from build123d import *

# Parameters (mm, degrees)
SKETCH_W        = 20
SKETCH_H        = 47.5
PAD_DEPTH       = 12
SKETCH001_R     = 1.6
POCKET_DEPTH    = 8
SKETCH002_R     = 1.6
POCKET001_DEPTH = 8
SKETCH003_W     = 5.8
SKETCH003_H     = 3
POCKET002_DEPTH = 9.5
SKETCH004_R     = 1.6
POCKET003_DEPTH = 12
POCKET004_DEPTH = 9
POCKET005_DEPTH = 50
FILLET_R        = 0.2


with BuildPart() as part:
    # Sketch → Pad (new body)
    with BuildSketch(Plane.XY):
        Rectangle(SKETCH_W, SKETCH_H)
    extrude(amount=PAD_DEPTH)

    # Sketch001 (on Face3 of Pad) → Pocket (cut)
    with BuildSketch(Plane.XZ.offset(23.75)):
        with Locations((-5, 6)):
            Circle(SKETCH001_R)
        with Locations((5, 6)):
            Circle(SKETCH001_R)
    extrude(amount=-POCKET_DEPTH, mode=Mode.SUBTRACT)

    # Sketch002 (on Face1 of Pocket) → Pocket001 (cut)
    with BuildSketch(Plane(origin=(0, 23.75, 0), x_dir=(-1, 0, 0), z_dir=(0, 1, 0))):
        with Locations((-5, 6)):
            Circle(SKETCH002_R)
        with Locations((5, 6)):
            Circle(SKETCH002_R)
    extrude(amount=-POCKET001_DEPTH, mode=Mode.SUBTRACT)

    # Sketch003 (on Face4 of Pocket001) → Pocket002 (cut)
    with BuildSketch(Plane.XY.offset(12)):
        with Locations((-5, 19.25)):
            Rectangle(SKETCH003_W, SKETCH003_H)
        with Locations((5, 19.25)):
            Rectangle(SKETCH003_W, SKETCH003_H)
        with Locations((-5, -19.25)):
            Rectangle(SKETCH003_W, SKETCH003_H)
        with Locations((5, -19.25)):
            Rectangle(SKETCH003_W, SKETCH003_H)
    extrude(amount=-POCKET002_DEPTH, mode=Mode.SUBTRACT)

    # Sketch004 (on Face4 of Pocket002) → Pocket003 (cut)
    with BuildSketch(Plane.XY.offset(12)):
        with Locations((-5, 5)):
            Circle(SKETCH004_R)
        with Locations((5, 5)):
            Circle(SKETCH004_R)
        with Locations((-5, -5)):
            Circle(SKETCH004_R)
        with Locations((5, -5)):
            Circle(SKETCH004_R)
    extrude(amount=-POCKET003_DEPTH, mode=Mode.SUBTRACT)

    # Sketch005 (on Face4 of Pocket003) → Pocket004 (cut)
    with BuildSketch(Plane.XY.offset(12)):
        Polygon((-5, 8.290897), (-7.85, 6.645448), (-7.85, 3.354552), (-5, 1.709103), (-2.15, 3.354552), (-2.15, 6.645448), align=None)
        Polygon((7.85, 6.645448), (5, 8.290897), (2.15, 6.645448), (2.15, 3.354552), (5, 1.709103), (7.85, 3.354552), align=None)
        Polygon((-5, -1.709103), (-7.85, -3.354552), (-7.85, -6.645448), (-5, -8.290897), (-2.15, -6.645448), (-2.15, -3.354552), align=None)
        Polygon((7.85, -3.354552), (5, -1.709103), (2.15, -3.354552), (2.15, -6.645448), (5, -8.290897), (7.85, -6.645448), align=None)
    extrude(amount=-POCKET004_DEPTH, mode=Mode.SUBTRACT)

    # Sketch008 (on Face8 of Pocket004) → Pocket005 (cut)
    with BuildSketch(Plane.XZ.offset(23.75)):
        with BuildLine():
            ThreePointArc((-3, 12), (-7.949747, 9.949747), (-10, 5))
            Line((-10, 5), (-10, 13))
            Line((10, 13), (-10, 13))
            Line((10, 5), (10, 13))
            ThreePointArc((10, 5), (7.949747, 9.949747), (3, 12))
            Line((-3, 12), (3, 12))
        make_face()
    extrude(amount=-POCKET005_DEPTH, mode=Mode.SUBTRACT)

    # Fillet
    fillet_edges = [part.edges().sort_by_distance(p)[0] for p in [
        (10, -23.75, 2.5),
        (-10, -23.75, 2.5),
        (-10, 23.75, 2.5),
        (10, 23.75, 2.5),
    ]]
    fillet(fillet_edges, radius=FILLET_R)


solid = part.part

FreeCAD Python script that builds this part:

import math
import FreeCAD as App
import Part
import Sketcher
Q = App.Units.Quantity


def edges_at(feature, points):
    """Names of the edges that pass closest to the given points."""
    edges = feature.Shape.Edges
    near = lambda p: min(range(len(edges)), key=lambda i: edges[i].distToShape(Part.Vertex(*p))[0])
    return sorted({f"Edge{near(p) + 1}" for p in points})


def add_polygon(sketch, points):
    """Adds a closed chain of lines whose ends are joined by coincident constraints."""
    first, n = sketch.GeometryCount, len(points)
    for a, b in zip(points, points[1:] + points[:1]):
        sketch.addGeometry(Part.LineSegment(App.Vector(*a, 0), App.Vector(*b, 0)), False)
    for i in range(n):
        sketch.addConstraint(Sketcher.Constraint("Coincident", first + i, 2, first + (i + 1) % n, 1))

doc = App.newDocument("Part")
params = doc.addObject("Spreadsheet::Sheet", "Params")
for row, (alias, value) in enumerate([
    ("sketch1_width", "20 mm"),
    ("sketch1_height", "47.5 mm"),
    ("pad1_length", "12 mm"),
    ("sketch2_diameter", "3.2 mm"),
    ("pocket1_length", "8 mm"),
    ("sketch3_diameter", "3.2 mm"),
    ("pocket2_length", "8 mm"),
    ("sketch4_height", "3 mm"),
    ("sketch4_width", "5.8 mm"),
    ("pocket3_length", "9.5 mm"),
    ("sketch5_diameter", "3.2 mm"),
    ("pocket4_length", "12 mm"),
    ("pocket5_length", "9 mm"),
    ("sketch7_radius", "7.000002 mm"),
    ("sketch7_width", "6 mm"),
    ("sketch7_height", "8 mm"),
    ("pocket6_length", "50 mm"),
    ("fillet_radius", "0.2 mm"),
], start=1):
    params.set(f"A{row}", alias)
    params.set(f"B{row}", "=" + value)
    params.setAlias(f"B{row}", alias)

body = doc.addObject("PartDesign::Body", "Body")

# Sketch on XY plane
sketch1 = body.newObject("Sketcher::SketchObject", "Sketch")
sketch1.AttachmentSupport = (doc.getObject("XY_Plane"), [""])
sketch1.MapMode = "FlatFace"
add_polygon(sketch1, [(-10, 23.75), (-10, -23.75), (10, -23.75), (10, 23.75)])  # lines 0-3
sketch1.addConstraint([
    Sketcher.Constraint("Vertical", 0),
    Sketcher.Constraint("Horizontal", 1),
    Sketcher.Constraint("Vertical", 2),
    Sketcher.Constraint("Horizontal", 3),
    Sketcher.Constraint("Symmetric", 0, 2, 2, 2, -1, 1),
    Sketcher.Constraint("DistanceX", 1, 1, 1, 2, 20.0),
    Sketcher.Constraint("DistanceY", 0, 2, 0, 1, 47.5),
])
sketch1.setExpression("Constraints[9]", "Params.sketch1_width")
sketch1.setExpression("Constraints[10]", "Params.sketch1_height")
pad1 = body.newObject("PartDesign::Pad", "Pad")
pad1.Profile = sketch1
pad1.setExpression("Length", "Params.pad1_length")

# Sketch on XZ plane
sketch2 = body.newObject("Sketcher::SketchObject", "Sketch001")
sketch2.AttachmentSupport = (doc.getObject("XZ_Plane"), [""])
sketch2.MapMode = "FlatFace"
sketch2.AttachmentOffset = App.Placement(App.Vector(0, 0, 23.75), App.Rotation())
sketch2.addGeometry([
    Part.Circle(App.Vector(-5, 6, 0), App.Vector(0, 0, 1), 1.6),
    Part.Circle(App.Vector(5, 6, 0), App.Vector(0, 0, 1), 1.6),
], False)
sketch2.addConstraint([
    Sketcher.Constraint("Equal", 0, 1),
    Sketcher.Constraint("Symmetric", 0, 3, 1, 3, -2),
    Sketcher.Constraint("Diameter", 0, 3.2),
    Sketcher.Constraint("DistanceX", 0, 3, -1, 1, 5.0),
    Sketcher.Constraint("DistanceY", -1, 1, 0, 3, 6.0),
])
sketch2.setExpression("Constraints[2]", "Params.sketch2_diameter")
pocket1 = body.newObject("PartDesign::Pocket", "Pocket")
pocket1.Profile = sketch2
pocket1.setExpression("Length", "Params.pocket1_length")

# Sketch on XZ plane
sketch3 = body.newObject("Sketcher::SketchObject", "Sketch002")
sketch3.AttachmentSupport = (doc.getObject("XZ_Plane"), [""])
sketch3.MapMode = "FlatFace"
sketch3.AttachmentOffset = App.Placement(App.Vector(0, 0, -23.75), App.Rotation())
sketch3.addGeometry([
    Part.Circle(App.Vector(5, 6, 0), App.Vector(0, 0, 1), 1.6),
    Part.Circle(App.Vector(-5, 6, 0), App.Vector(0, 0, 1), 1.6),
], False)
sketch3.addConstraint([
    Sketcher.Constraint("Equal", 0, 1),
    Sketcher.Constraint("Symmetric", 0, 3, 1, 3, -2),
    Sketcher.Constraint("Diameter", 0, 3.2),
    Sketcher.Constraint("DistanceX", -1, 1, 0, 3, 5.0),
    Sketcher.Constraint("DistanceY", -1, 1, 0, 3, 6.0),
])
sketch3.setExpression("Constraints[2]", "Params.sketch3_diameter")
pocket2 = body.newObject("PartDesign::Pocket", "Pocket001")
pocket2.Profile = sketch3
pocket2.setExpression("Length", "Params.pocket2_length")
pocket2.Reversed = True

# Sketch on XY plane
sketch4 = body.newObject("Sketcher::SketchObject", "Sketch003")
sketch4.AttachmentSupport = (doc.getObject("XY_Plane"), [""])
sketch4.MapMode = "FlatFace"
sketch4.AttachmentOffset = App.Placement(App.Vector(0, 0, 12), App.Rotation())
add_polygon(sketch4, [(-7.9, 20.75), (-7.9, 17.75), (-2.1, 17.75), (-2.1, 20.75)])  # lines 0-3
add_polygon(sketch4, [(2.1, 20.75), (2.1, 17.75), (7.9, 17.75), (7.9, 20.75)])  # lines 4-7
add_polygon(sketch4, [(-7.9, -17.75), (-7.9, -20.75), (-2.1, -20.75), (-2.1, -17.75)])  # lines 8-11
add_polygon(sketch4, [(2.1, -17.75), (2.1, -20.75), (7.9, -20.75), (7.9, -17.75)])  # lines 12-15
sketch4.addConstraint([
    Sketcher.Constraint("Vertical", 0),
    Sketcher.Constraint("Horizontal", 1),
    Sketcher.Constraint("Vertical", 2),
    Sketcher.Constraint("Horizontal", 3),
    Sketcher.Constraint("Vertical", 4),
    Sketcher.Constraint("Horizontal", 5),
    Sketcher.Constraint("Vertical", 6),
    Sketcher.Constraint("Horizontal", 7),
    Sketcher.Constraint("Vertical", 8),
    Sketcher.Constraint("Horizontal", 9),
    Sketcher.Constraint("Vertical", 10),
    Sketcher.Constraint("Horizontal", 11),
    Sketcher.Constraint("Vertical", 12),
    Sketcher.Constraint("Horizontal", 13),
    Sketcher.Constraint("Vertical", 14),
    Sketcher.Constraint("Horizontal", 15),
    Sketcher.Constraint("Symmetric", 6, 2, 8, 2, -1, 1),
    Sketcher.Constraint("Symmetric", 4, 2, 10, 2, -1, 1),
    Sketcher.Constraint("Symmetric", 2, 2, 12, 2, -1, 1),
    Sketcher.Constraint("Symmetric", 0, 2, 14, 2, -1, 1),
    Sketcher.Constraint("Symmetric", 1, 2, 4, 2, -2),
    Sketcher.Constraint("Symmetric", 3, 2, 6, 2, -2),
    Sketcher.Constraint("DistanceY", 0, 2, 0, 1, 3.0),
    Sketcher.Constraint("DistanceX", 1, 1, 1, 2, 5.8),
    Sketcher.Constraint("DistanceX", 0, 2, 4, 2, 10.0),
    Sketcher.Constraint("DistanceY", 8, 2, 0, 2, 38.5),
])
sketch4.setExpression("Constraints[38]", "Params.sketch4_height")
sketch4.setExpression("Constraints[39]", "Params.sketch4_width")
pocket3 = body.newObject("PartDesign::Pocket", "Pocket002")
pocket3.Profile = sketch4
pocket3.setExpression("Length", "Params.pocket3_length")

# Sketch on XY plane
sketch5 = body.newObject("Sketcher::SketchObject", "Sketch004")
sketch5.AttachmentSupport = (doc.getObject("XY_Plane"), [""])
sketch5.MapMode = "FlatFace"
sketch5.AttachmentOffset = App.Placement(App.Vector(0, 0, 12), App.Rotation())
sketch5.addGeometry([
    Part.Circle(App.Vector(-5, 5, 0), App.Vector(0, 0, 1), 1.6),
    Part.Circle(App.Vector(5, 5, 0), App.Vector(0, 0, 1), 1.6),
    Part.Circle(App.Vector(-5, -5, 0), App.Vector(0, 0, 1), 1.6),
    Part.Circle(App.Vector(5, -5, 0), App.Vector(0, 0, 1), 1.6),
], False)
sketch5.addConstraint([
    Sketcher.Constraint("Equal", 0, 1),
    Sketcher.Constraint("Equal", 1, 2),
    Sketcher.Constraint("Equal", 2, 3),
    Sketcher.Constraint("Symmetric", 1, 3, 2, 3, -1, 1),
    Sketcher.Constraint("Symmetric", 0, 3, 3, 3, -1, 1),
    Sketcher.Constraint("Symmetric", 0, 3, 1, 3, -2),
    Sketcher.Constraint("Diameter", 0, 3.2),
    Sketcher.Constraint("DistanceX", 0, 3, -1, 1, 5.0),
    Sketcher.Constraint("DistanceY", -1, 1, 0, 3, 5.0),
])
sketch5.setExpression("Constraints[6]", "Params.sketch5_diameter")
pocket4 = body.newObject("PartDesign::Pocket", "Pocket003")
pocket4.Profile = sketch5
pocket4.setExpression("Length", "Params.pocket4_length")

# Sketch on XY plane
sketch6 = body.newObject("Sketcher::SketchObject", "Sketch005")
sketch6.AttachmentSupport = (doc.getObject("XY_Plane"), [""])
sketch6.MapMode = "FlatFace"
sketch6.AttachmentOffset = App.Placement(App.Vector(0, 0, 12), App.Rotation())
add_polygon(sketch6, [(-5, 8.290897), (-7.85, 6.645448), (-7.85, 3.354552), (-5, 1.709103), (-2.15, 3.354552), (-2.15, 6.645448)])  # lines 0-5
add_polygon(sketch6, [(7.85, 6.645448), (5, 8.290897), (2.15, 6.645448), (2.15, 3.354552), (5, 1.709103), (7.85, 3.354552)])  # lines 6-11
add_polygon(sketch6, [(-5, -1.709103), (-7.85, -3.354552), (-7.85, -6.645448), (-5, -8.290897), (-2.15, -6.645448), (-2.15, -3.354552)])  # lines 12-17
add_polygon(sketch6, [(7.85, -3.354552), (5, -1.709103), (2.15, -3.354552), (2.15, -6.645448), (5, -8.290897), (7.85, -6.645448)])  # lines 18-23
sketch6.addConstraint([
    Sketcher.Constraint("Vertical", 1),
    Sketcher.Constraint("Vertical", 4),
    Sketcher.Constraint("Vertical", 8),
    Sketcher.Constraint("Vertical", 11),
    Sketcher.Constraint("Vertical", 13),
    Sketcher.Constraint("Vertical", 16),
    Sketcher.Constraint("Vertical", 20),
    Sketcher.Constraint("Vertical", 23),
    Sketcher.Constraint("Symmetric", 10, 2, 12, 2, -1, 1),
    Sketcher.Constraint("Symmetric", 6, 2, 14, 2, -1, 1),
    Sketcher.Constraint("Symmetric", 7, 2, 15, 2, -1, 1),
    Sketcher.Constraint("Symmetric", 9, 2, 17, 2, -1, 1),
    Sketcher.Constraint("Symmetric", 2, 2, 18, 2, -1, 1),
    Sketcher.Constraint("Symmetric", 3, 2, 19, 2, -1, 1),
    Sketcher.Constraint("Symmetric", 5, 2, 21, 2, -1, 1),
    Sketcher.Constraint("Symmetric", 0, 2, 22, 2, -1, 1),
    Sketcher.Constraint("Symmetric", 5, 2, 6, 2, -2),
    Sketcher.Constraint("Symmetric", 4, 2, 7, 2, -2),
    Sketcher.Constraint("Symmetric", 2, 2, 9, 2, -2),
    Sketcher.Constraint("Symmetric", 1, 2, 10, 2, -2),
    Sketcher.Constraint("Parallel", 0, 3),
    Sketcher.Constraint("Parallel", 2, 5),
    Sketcher.Constraint("Parallel", 5, 6),
    Sketcher.Constraint("Parallel", 3, 7),
    Sketcher.Constraint("Parallel", 6, 9),
    Sketcher.Constraint("Parallel", 9, 14),
    Sketcher.Constraint("Parallel", 14, 17),
    Sketcher.Constraint("Parallel", 17, 18),
    Sketcher.Constraint("Parallel", 18, 21),
    Sketcher.Constraint("Horizontal", 1, 2, 3, 2),
    Sketcher.Constraint("Horizontal", 0, 2, 4, 2),
    Sketcher.Constraint("Angle", 0, Q("-149.999989 deg")),
    Sketcher.Constraint("DistanceX", 2, 2, -1, 1, 5.0),
    Sketcher.Constraint("DistanceY", 12, 2, 0, 2, 10.0),
    Sketcher.Constraint("DistanceX", 1, 2, 3, 2, 5.7),
    Sketcher.Constraint("DistanceY", 1, 2, 1, 1, 3.290896),
])
pocket5 = body.newObject("PartDesign::Pocket", "Pocket004")
pocket5.Profile = sketch6
pocket5.setExpression("Length", "Params.pocket5_length")

# Sketch on XZ plane
sketch7 = body.newObject("Sketcher::SketchObject", "Sketch006")
sketch7.AttachmentSupport = (doc.getObject("XZ_Plane"), [""])
sketch7.MapMode = "FlatFace"
sketch7.AttachmentOffset = App.Placement(App.Vector(0, 0, 23.75), App.Rotation())
sketch7.addGeometry([
    Part.ArcOfCircle(Part.Circle(App.Vector(-2.999998, 4.999998, 0), App.Vector(0, 0, 1), 7.000002), math.radians(90.000013), math.radians(179.999987)),  # 0
    Part.LineSegment(App.Vector(-3, 12, 0), App.Vector(3, 12, 0)),  # 1
    Part.ArcOfCircle(Part.Circle(App.Vector(2.999998, 4.999998, 0), App.Vector(0, 0, 1), 7.000002), math.radians(0.000013), math.radians(89.999987)),  # 2
    Part.LineSegment(App.Vector(10, 5, 0), App.Vector(10, 13, 0)),  # 3
    Part.LineSegment(App.Vector(10, 13, 0), App.Vector(-10, 13, 0)),  # 4
    Part.LineSegment(App.Vector(-10, 13, 0), App.Vector(-10, 5, 0)),  # 5
], False)
sketch7.addConstraint([
    Sketcher.Constraint("Tangent", 0, 1, 1, 1),
    Sketcher.Constraint("Tangent", 1, 2, 2, 2),
    Sketcher.Constraint("Tangent", 2, 1, 3, 1),
    Sketcher.Constraint("Coincident", 3, 2, 4, 1),
    Sketcher.Constraint("Coincident", 4, 2, 5, 1),
    Sketcher.Constraint("Tangent", 5, 2, 0, 2),
    Sketcher.Constraint("Horizontal", 1),
    Sketcher.Constraint("Vertical", 3),
    Sketcher.Constraint("Horizontal", 4),
    Sketcher.Constraint("Vertical", 5),
    Sketcher.Constraint("Equal", 0, 2),
    Sketcher.Constraint("Radius", 0, 7.000002),
    Sketcher.Constraint("DistanceX", 1, 1, 1, 2, 6.0),
    Sketcher.Constraint("DistanceY", 3, 1, 3, 2, 8.0),
    Sketcher.Constraint("DistanceX", 0, 3, -1, 1, 2.999998),
    Sketcher.Constraint("DistanceY", -1, 1, 0, 3, 4.999998),
])
sketch7.setExpression("Constraints[11]", "Params.sketch7_radius")
sketch7.setExpression("Constraints[12]", "Params.sketch7_width")
sketch7.setExpression("Constraints[13]", "Params.sketch7_height")
pocket6 = body.newObject("PartDesign::Pocket", "Pocket005")
pocket6.Profile = sketch7
pocket6.setExpression("Length", "Params.pocket6_length")
doc.recompute()

fillet = body.newObject("PartDesign::Fillet", "Fillet")
fillet.Base = (pocket6, edges_at(pocket6, [
    (10, -23.75, 2.5),
    (-10, -23.75, 2.5),
    (-10, 23.75, 2.5),
    (10, 23.75, 2.5),
]))
fillet.setExpression("Radius", "Params.fillet_radius")

doc.recompute()
